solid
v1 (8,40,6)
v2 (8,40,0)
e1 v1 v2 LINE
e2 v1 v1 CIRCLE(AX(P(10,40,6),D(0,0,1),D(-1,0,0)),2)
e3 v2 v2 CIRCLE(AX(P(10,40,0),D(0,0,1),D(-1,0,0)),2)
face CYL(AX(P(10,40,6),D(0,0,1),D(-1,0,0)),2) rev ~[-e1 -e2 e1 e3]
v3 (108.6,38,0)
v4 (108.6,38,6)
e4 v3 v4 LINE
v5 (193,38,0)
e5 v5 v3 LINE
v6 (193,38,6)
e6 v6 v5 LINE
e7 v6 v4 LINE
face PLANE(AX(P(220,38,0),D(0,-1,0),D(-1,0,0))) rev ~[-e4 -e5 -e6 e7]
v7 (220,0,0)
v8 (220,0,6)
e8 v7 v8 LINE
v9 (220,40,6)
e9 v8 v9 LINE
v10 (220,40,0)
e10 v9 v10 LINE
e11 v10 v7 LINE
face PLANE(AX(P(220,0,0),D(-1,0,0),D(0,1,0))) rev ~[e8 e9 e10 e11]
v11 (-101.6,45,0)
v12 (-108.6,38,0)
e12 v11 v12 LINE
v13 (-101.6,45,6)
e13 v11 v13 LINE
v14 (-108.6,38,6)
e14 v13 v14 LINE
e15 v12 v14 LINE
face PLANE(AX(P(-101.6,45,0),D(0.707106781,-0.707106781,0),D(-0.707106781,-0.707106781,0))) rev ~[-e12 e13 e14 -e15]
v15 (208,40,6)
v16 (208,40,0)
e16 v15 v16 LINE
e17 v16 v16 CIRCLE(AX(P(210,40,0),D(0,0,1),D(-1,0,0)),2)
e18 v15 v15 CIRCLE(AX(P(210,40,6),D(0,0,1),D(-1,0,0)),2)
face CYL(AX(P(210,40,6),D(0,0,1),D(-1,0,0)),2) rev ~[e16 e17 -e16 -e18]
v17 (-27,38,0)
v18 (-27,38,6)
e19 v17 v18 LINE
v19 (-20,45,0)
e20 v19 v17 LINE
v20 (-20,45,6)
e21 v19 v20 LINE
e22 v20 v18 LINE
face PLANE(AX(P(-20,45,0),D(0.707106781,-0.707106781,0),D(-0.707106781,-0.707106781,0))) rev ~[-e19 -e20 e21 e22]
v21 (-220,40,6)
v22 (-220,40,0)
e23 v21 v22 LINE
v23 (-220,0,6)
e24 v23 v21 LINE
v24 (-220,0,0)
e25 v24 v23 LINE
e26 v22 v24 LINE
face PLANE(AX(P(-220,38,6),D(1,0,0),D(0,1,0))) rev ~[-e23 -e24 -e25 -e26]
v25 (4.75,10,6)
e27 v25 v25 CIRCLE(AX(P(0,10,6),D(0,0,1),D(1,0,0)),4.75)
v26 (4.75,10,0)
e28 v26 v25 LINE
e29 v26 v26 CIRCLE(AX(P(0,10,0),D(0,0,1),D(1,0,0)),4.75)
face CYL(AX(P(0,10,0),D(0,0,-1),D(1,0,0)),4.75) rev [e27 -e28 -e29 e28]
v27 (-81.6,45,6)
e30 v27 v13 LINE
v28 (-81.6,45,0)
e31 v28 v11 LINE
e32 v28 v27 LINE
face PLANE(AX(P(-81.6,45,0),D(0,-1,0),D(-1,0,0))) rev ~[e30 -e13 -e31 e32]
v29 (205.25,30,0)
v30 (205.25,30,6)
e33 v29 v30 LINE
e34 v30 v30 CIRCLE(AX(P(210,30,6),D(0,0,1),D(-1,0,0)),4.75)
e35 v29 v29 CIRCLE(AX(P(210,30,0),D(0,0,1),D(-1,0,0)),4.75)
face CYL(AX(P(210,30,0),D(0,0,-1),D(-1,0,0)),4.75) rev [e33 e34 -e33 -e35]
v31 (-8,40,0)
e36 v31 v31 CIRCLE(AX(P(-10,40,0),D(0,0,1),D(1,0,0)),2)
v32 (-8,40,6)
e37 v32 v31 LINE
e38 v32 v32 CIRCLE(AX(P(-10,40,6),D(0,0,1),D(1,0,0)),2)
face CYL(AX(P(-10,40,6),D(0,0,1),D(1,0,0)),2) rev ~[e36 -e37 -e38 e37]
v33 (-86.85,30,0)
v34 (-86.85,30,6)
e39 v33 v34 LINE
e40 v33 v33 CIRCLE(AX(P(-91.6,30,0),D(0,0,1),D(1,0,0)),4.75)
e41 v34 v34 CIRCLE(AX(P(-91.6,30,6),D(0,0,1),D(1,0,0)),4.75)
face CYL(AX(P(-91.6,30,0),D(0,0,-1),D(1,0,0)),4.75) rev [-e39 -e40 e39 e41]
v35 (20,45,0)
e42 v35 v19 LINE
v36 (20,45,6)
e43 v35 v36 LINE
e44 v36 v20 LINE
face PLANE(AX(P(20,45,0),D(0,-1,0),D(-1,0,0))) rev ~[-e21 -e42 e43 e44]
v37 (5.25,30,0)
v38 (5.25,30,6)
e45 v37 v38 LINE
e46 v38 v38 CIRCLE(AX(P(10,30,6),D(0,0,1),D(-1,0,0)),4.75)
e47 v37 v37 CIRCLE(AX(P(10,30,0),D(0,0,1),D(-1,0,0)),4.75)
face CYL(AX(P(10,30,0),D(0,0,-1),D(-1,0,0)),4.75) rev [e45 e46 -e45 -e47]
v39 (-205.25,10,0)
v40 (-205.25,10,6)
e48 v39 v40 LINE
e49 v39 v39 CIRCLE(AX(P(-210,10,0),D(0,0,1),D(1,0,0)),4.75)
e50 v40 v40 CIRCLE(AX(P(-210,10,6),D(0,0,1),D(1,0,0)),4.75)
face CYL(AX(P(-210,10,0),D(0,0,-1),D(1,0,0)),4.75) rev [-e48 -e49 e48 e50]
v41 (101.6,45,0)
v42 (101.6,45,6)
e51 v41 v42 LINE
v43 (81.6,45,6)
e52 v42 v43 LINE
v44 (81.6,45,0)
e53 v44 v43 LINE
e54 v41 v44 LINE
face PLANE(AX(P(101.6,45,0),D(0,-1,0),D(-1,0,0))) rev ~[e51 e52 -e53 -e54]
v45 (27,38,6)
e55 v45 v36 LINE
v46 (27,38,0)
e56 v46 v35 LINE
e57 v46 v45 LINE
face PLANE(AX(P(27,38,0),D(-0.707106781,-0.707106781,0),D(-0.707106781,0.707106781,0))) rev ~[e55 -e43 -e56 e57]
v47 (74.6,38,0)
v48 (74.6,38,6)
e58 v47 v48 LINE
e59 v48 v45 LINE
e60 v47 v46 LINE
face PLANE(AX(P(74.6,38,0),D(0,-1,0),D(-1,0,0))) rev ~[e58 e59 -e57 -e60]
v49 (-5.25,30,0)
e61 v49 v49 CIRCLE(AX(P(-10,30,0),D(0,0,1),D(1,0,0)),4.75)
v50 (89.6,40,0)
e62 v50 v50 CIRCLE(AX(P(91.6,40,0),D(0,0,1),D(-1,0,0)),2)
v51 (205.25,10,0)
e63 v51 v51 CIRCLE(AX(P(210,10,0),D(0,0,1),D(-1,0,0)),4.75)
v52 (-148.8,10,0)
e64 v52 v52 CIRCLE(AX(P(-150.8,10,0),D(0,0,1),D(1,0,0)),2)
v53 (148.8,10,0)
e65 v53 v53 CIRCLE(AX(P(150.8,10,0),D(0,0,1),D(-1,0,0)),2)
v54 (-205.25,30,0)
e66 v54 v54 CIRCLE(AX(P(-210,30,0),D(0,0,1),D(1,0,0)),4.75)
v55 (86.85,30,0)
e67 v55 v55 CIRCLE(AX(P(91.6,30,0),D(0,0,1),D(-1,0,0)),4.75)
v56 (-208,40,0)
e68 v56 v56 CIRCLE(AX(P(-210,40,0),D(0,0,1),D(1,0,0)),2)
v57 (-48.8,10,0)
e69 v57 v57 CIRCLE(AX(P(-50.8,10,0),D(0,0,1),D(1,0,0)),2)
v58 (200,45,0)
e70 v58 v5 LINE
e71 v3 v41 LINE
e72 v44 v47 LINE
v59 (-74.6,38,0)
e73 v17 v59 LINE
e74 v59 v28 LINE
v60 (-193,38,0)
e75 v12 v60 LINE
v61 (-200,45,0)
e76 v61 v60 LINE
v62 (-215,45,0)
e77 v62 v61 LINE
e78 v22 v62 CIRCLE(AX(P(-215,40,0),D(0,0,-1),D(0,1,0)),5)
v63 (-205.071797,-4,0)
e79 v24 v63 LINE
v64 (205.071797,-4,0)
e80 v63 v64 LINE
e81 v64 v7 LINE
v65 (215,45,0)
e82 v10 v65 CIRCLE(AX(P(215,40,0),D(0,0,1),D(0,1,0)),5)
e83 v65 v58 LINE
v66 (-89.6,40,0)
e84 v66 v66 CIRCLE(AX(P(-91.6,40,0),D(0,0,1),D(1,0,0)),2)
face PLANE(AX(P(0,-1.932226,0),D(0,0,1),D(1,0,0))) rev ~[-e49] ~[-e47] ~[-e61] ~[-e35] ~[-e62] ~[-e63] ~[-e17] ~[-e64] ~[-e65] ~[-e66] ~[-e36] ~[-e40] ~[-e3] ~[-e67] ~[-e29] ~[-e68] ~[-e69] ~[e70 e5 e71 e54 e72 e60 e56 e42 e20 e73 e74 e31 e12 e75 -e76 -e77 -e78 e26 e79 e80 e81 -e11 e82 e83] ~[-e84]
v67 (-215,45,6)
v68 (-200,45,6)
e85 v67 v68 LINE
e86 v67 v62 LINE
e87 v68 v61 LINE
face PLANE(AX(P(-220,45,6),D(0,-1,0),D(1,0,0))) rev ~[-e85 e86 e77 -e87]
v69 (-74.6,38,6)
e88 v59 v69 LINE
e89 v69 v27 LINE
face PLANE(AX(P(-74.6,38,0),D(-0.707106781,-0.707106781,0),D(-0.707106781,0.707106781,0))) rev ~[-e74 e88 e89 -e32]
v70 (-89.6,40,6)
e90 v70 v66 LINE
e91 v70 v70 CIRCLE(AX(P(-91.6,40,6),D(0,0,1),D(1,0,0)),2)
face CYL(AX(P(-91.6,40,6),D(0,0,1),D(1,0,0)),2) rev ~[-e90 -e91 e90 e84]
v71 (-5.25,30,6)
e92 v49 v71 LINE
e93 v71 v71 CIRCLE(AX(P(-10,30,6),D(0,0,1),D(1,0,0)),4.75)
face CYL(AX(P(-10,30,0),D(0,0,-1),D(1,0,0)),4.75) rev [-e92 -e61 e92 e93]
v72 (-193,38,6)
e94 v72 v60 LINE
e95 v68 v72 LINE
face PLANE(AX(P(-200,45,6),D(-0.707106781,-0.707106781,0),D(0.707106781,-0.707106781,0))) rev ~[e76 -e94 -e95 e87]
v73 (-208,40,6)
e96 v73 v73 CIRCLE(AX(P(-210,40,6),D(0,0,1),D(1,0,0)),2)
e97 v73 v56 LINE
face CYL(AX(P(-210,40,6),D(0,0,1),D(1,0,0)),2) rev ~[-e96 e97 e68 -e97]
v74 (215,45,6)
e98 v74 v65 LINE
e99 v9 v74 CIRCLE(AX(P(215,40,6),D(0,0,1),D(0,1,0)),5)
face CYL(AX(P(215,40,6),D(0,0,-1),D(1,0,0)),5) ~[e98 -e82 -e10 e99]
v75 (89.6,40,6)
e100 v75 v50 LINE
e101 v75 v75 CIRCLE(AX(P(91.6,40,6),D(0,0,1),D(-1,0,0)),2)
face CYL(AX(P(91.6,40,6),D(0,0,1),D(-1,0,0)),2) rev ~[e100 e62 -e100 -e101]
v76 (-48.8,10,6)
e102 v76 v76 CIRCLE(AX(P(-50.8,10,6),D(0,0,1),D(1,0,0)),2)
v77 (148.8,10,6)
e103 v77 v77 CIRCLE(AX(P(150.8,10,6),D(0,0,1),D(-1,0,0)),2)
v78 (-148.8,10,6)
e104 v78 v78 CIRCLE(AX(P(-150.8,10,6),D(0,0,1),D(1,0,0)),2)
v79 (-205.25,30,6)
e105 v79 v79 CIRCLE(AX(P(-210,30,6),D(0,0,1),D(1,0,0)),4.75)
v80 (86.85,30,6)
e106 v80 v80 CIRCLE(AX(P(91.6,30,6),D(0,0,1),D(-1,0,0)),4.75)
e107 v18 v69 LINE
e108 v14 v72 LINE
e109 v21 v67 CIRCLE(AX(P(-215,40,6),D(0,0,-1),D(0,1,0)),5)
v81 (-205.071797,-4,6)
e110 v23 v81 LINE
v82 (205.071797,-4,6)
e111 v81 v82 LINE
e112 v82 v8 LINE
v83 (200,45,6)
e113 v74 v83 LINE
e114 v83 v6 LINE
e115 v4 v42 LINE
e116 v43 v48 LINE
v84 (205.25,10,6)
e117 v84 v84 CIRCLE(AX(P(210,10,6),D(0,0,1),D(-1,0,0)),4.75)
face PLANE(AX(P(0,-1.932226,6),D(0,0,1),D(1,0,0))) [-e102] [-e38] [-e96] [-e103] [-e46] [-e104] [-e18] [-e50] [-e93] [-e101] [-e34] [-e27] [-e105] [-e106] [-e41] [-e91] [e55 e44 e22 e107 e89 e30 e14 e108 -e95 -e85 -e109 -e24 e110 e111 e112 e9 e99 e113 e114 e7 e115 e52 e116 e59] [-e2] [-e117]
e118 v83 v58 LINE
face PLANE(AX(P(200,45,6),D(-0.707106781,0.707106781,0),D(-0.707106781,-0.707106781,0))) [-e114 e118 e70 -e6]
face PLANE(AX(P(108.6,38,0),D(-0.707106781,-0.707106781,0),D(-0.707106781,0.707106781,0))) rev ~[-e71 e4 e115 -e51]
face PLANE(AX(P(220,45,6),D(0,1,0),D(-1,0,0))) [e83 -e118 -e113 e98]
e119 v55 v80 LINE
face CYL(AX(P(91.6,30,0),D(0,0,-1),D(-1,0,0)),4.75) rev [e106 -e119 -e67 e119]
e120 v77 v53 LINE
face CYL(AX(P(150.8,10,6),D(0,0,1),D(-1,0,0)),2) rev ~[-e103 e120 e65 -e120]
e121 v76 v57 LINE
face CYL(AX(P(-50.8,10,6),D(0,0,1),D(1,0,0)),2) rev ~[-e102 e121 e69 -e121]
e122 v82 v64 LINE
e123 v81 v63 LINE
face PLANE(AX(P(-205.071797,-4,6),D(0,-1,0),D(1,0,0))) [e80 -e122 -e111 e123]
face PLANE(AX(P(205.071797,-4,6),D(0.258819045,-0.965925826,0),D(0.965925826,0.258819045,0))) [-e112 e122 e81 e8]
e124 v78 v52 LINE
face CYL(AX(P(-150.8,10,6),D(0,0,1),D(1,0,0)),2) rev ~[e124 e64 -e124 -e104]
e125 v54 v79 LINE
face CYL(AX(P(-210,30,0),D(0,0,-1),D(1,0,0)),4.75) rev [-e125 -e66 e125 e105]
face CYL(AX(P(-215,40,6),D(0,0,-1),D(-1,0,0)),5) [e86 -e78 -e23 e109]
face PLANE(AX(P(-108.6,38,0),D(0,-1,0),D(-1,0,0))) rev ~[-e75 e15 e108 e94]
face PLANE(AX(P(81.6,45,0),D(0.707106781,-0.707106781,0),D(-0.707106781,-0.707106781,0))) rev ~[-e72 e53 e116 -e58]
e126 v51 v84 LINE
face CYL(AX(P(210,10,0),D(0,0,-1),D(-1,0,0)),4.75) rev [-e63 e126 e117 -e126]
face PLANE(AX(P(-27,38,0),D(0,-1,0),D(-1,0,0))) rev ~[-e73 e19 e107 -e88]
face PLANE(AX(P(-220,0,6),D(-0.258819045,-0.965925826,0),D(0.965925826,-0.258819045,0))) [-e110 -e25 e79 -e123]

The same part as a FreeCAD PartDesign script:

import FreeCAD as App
import Part
import Sketcher

V = App.Vector
Q = App.Units.Quantity


def edges_at(feature, points):
    """Names of the edges that pass closest to the given points."""
    edges = feature.Shape.Edges
    near = lambda p: min(range(len(edges)), key=lambda i: edges[i].distToShape(Part.Vertex(*p))[0])
    return sorted({f"Edge{near(p) + 1}" for p in points})


def add_polygon(sketch, points):
    """Adds a closed chain of lines whose ends are joined by coincident constraints."""
    first, n = sketch.GeometryCount, len(points)
    for a, b in zip(points, points[1:] + points[:1]):
        sketch.addGeometry(Part.LineSegment(App.Vector(*a, 0), App.Vector(*b, 0)), False)
    for i in range(n):
        sketch.addConstraint(Sketcher.Constraint("Coincident", first + i, 2, first + (i + 1) % n, 1))

doc = App.newDocument("Part")
params = doc.addObject("Spreadsheet::Sheet", "Params")
for row, (alias, value) in enumerate([
    ("sketch1_diameter", "9.5 mm"),
    ("sketch1_width", "440 mm"),
    ("sketch1_width2", "20 mm"),
    ("sketch1_width3", "40 mm"),
    ("sketch1_height", "38 mm"),
    ("pad1_length", "6 mm"),
    ("sketch2_width", "27 mm"),
    ("sketch2_width2", "20 mm"),
    ("pad2_length", "6 mm"),
    ("sketch3_diameter", "4 mm"),
    ("sketch4_width", "440 mm"),
    ("pad3_length", "6 mm"),
    ("fillet_radius", "5 mm"),
], start=1):
    params.set(f"A{row}", alias)
    params.set(f"B{row}", "=" + value)
    params.setAlias(f"B{row}", alias)

body = doc.addObject("PartDesign::Body", "Body")

# Sketch on XY plane
sketch1 = doc.addObject("Sketcher::SketchObject", "Sketch")
body.addObject(sketch1)
sketch1.AttachmentSupport = (doc.XY_Plane, [""])
sketch1.MapMode = "FlatFace"
add_polygon(sketch1, [(-220, 0), (220, 0), (220, 38), (108.6, 38), (101.6, 45), (81.6, 45), (74.6, 38), (27, 38), (20, 45), (-20, 45), (-27, 38), (-74.6, 38), (-81.6, 45), (-101.6, 45), (-108.6, 38), (-220, 38)])  # lines 0-15
sketch1.addGeometry(Part.Circle(V(-210, 10, 0), V(0, 0, 1), 4.8), False)  # 16
sketch1.addGeometry(Part.Circle(V(0, 10, 0), V(0, 0, 1), 4.8), False)  # 17
sketch1.addGeometry(Part.Circle(V(210, 10, 0), V(0, 0, 1), 4.8), False)  # 18
sketch1.addGeometry(Part.Circle(V(-210, 30, 0), V(0, 0, 1), 4.8), False)  # 19
sketch1.addGeometry(Part.Circle(V(-91.6, 30, 0), V(0, 0, 1), 4.8), False)  # 20
sketch1.addGeometry(Part.Circle(V(-10, 30, 0), V(0, 0, 1), 4.8), False)  # 21
sketch1.addGeometry(Part.Circle(V(10, 30, 0), V(0, 0, 1), 4.8), False)  # 22
sketch1.addGeometry(Part.Circle(V(91.6, 30, 0), V(0, 0, 1), 4.8), False)  # 23
sketch1.addGeometry(Part.Circle(V(210, 30, 0), V(0, 0, 1), 4.8), False)  # 24
sketch1.addConstraint(Sketcher.Constraint("Horizontal", 0))
sketch1.addConstraint(Sketcher.Constraint("Vertical", 1))
sketch1.addConstraint(Sketcher.Constraint("Horizontal", 2))
sketch1.addConstraint(Sketcher.Constraint("Horizontal", 4))
sketch1.addConstraint(Sketcher.Constraint("Horizontal", 6))
sketch1.addConstraint(Sketcher.Constraint("Horizontal", 8))
sketch1.addConstraint(Sketcher.Constraint("Horizontal", 10))
sketch1.addConstraint(Sketcher.Constraint("Horizontal", 12))
sketch1.addConstraint(Sketcher.Constraint("Horizontal", 14))
sketch1.addConstraint(Sketcher.Constraint("Vertical", 15))
sketch1.addConstraint(Sketcher.Constraint("Equal", 16, 17))
sketch1.addConstraint(Sketcher.Constraint("Equal", 17, 18))
sketch1.addConstraint(Sketcher.Constraint("Equal", 18, 19))
sketch1.addConstraint(Sketcher.Constraint("Equal", 19, 20))
sketch1.addConstraint(Sketcher.Constraint("Equal", 20, 21))
sketch1.addConstraint(Sketcher.Constraint("Equal", 21, 22))
sketch1.addConstraint(Sketcher.Constraint("Equal", 22, 23))
sketch1.addConstraint(Sketcher.Constraint("Equal", 23, 24))
sketch1.addConstraint(Sketcher.Constraint("Symmetric", 0, 2, 15, 2, -1, 1))
sketch1.addConstraint(Sketcher.Constraint("Symmetric", 16, 3, 18, 3, -2))
sketch1.addConstraint(Sketcher.Constraint("Symmetric", 21, 3, 22, 3, -2))
sketch1.addConstraint(Sketcher.Constraint("Symmetric", 20, 3, 23, 3, -2))
sketch1.addConstraint(Sketcher.Constraint("Symmetric", 19, 3, 24, 3, -2))
sketch1.addConstraint(Sketcher.Constraint("Symmetric", 6, 2, 9, 2, -2))
sketch1.addConstraint(Sketcher.Constraint("Symmetric", 4, 2, 11, 2, -2))
sketch1.addConstraint(Sketcher.Constraint("Symmetric", 2, 2, 13, 2, -2))
sketch1.addConstraint(Sketcher.Constraint("PointOnObject", 17, 3, -2))
sketch1.addConstraint(Sketcher.Constraint("Perpendicular", 3, 5))
sketch1.addConstraint(Sketcher.Constraint("Perpendicular", 5, 7))
sketch1.addConstraint(Sketcher.Constraint("Perpendicular", 7, 9))
sketch1.addConstraint(Sketcher.Constraint("Perpendicular", 9, 11))
sketch1.addConstraint(Sketcher.Constraint("Perpendicular", 11, 13))
sketch1.addConstraint(Sketcher.Constraint("Horizontal", 16, 3, 17, 3))
sketch1.addConstraint(Sketcher.Constraint("Horizontal", 19, 3, 20, 3))
sketch1.addConstraint(Sketcher.Constraint("Horizontal", 20, 3, 21, 3))
sketch1.addConstraint(Sketcher.Constraint("Horizontal", 2, 2, 5, 2))
sketch1.addConstraint(Sketcher.Constraint("Horizontal", 4, 2, 7, 2))
sketch1.addConstraint(Sketcher.Constraint("Vertical", 16, 3, 19, 3))
sketch1.addConstraint(Sketcher.Constraint("Equal", 6, 10))
sketch1.addConstraint(Sketcher.Constraint("Diameter", 16, Q("9.5 mm")))
sketch1.addConstraint(Sketcher.Constraint("DistanceX", 0, 1, 0, 2, Q("440 mm")))
sketch1.addConstraint(Sketcher.Constraint("DistanceX", 4, 2, 4, 1, Q("20 mm")))
sketch1.addConstraint(Sketcher.Constraint("DistanceX", 8, 2, 8, 1, Q("40 mm")))
sketch1.addConstraint(Sketcher.Constraint("DistanceY", 1, 1, 1, 2, Q("38 mm")))
sketch1.addConstraint(Sketcher.Constraint("DistanceX", 2, 2, 2, 1, Q("111.4 mm")))
sketch1.addConstraint(Sketcher.Constraint("DistanceX", 6, 2, 6, 1, Q("47.6 mm")))
sketch1.addConstraint(Sketcher.Constraint("DistanceX", 16, 3, -1, 1, Q("210 mm")))
sketch1.addConstraint(Sketcher.Constraint("DistanceY", -1, 1, 16, 3, Q("10 mm")))
sketch1.addConstraint(Sketcher.Constraint("DistanceY", -1, 1, 19, 3, Q("30 mm")))
sketch1.addConstraint(Sketcher.Constraint("DistanceX", 21, 3, -1, 1, Q("10 mm")))
sketch1.addConstraint(Sketcher.Constraint("DistanceX", 23, 3, 2, 2, Q("17 mm")))
sketch1.setExpression("Constraints[55]", "Params.sketch1_diameter")
sketch1.setExpression("Constraints[56]", "Params.sketch1_width")
sketch1.setExpression("Constraints[57]", "Params.sketch1_width2")
sketch1.setExpression("Constraints[58]", "Params.sketch1_width3")
sketch1.setExpression("Constraints[59]", "Params.sketch1_height")
pad1 = doc.addObject("PartDesign::Pad", "Pad")
body.addObject(pad1)
pad1.Profile = sketch1
pad1.setExpression("Length", "Params.pad1_length")

# Sketch on XY plane
sketch2 = doc.addObject("Sketcher::SketchObject", "Sketch001")
body.addObject(sketch2)
sketch2.AttachmentSupport = (doc.XY_Plane, [""])
sketch2.MapMode = "FlatFace"
sketch2.AttachmentOffset = App.Placement(V(0, 0, 6), App.Rotation())
add_polygon(sketch2, [(-220, 45), (-220, 38), (-193, 38), (-200, 45)])  # lines 0-3
add_polygon(sketch2, [(200, 45), (193, 38), (220, 38), (220, 45)])  # lines 4-7
sketch2.addConstraint(Sketcher.Constraint("Vertical", 0))
sketch2.addConstraint(Sketcher.Constraint("Horizontal", 1))
sketch2.addConstraint(Sketcher.Constraint("Horizontal", 3))
sketch2.addConstraint(Sketcher.Constraint("Horizontal", 5))
sketch2.addConstraint(Sketcher.Constraint("Vertical", 6))
sketch2.addConstraint(Sketcher.Constraint("Horizontal", 7))
sketch2.addConstraint(Sketcher.Constraint("Symmetric", 1, 2, 4, 2, -2))
sketch2.addConstraint(Sketcher.Constraint("Symmetric", 3, 2, 6, 2, -2))
sketch2.addConstraint(Sketcher.Constraint("Perpendicular", 2, 4))
sketch2.addConstraint(Sketcher.Constraint("Equal", 3, 7))
sketch2.addConstraint(Sketcher.Constraint("DistanceX", 1, 1, 1, 2, Q("27 mm")))
sketch2.addConstraint(Sketcher.Constraint("DistanceX", 3, 2, 3, 1, Q("20 mm")))
sketch2.addConstraint(Sketcher.Constraint("DistanceX", 0, 2, -1, 1, Q("220 mm")))
sketch2.addConstraint(Sketcher.Constraint("DistanceY", -1, 1, 0, 2, Q("38 mm")))
sketch2.setExpression("Constraints[18]", "Params.sketch2_width")
sketch2.setExpression("Constraints[19]", "Params.sketch2_width2")
pad2 = doc.addObject("PartDesign::Pad", "Pad001")
body.addObject(pad2)
pad2.Profile = sketch2
pad2.setExpression("Length", "Params.pad2_length")
pad2.Reversed = True

# Sketch on XY plane
sketch3 = doc.addObject("Sketcher::SketchObject", "Sketch002")
body.addObject(sketch3)
sketch3.AttachmentSupport = (doc.XY_Plane, [""])
sketch3.MapMode = "FlatFace"
sketch3.AttachmentOffset = App.Placement(V(0, 0, 6), App.Rotation())
sketch3.addGeometry(Part.Circle(V(-91.6, 40, 0), V(0, 0, 1), 2), False)
sketch3.addGeometry(Part.Circle(V(-210, 40, 0), V(0, 0, 1), 2), False)
sketch3.addGeometry(Part.Circle(V(-10, 40, 0), V(0, 0, 1), 2), False)
sketch3.addGeometry(Part.Circle(V(10, 40, 0), V(0, 0, 1), 2), False)
sketch3.addGeometry(Part.Circle(V(91.6, 40, 0), V(0, 0, 1), 2), False)
sketch3.addGeometry(Part.Circle(V(210, 40, 0), V(0, 0, 1), 2), False)
sketch3.addGeometry(Part.Circle(V(-150.8, 10, 0), V(0, 0, 1), 2), False)
sketch3.addGeometry(Part.Circle(V(-50.8, 10, 0), V(0, 0, 1), 2), False)
sketch3.addGeometry(Part.Circle(V(150.8, 10, 0), V(0, 0, 1), 2), False)
sketch3.addConstraint(Sketcher.Constraint("Equal", 0, 1))
sketch3.addConstraint(Sketcher.Constraint("Equal", 1, 2))
sketch3.addConstraint(Sketcher.Constraint("Equal", 2, 3))
sketch3.addConstraint(Sketcher.Constraint("Equal", 3, 4))
sketch3.addConstraint(Sketcher.Constraint("Equal", 4, 5))
sketch3.addConstraint(Sketcher.Constraint("Equal", 5, 6))
sketch3.addConstraint(Sketcher.Constraint("Equal", 6, 7))
sketch3.addConstraint(Sketcher.Constraint("Equal", 7, 8))
sketch3.addConstraint(Sketcher.Constraint("Symmetric", 2, 3, 3, 3, -2))
sketch3.addConstraint(Sketcher.Constraint("Symmetric", 0, 3, 4, 3, -2))
sketch3.addConstraint(Sketcher.Constraint("Symmetric", 1, 3, 5, 3, -2))
sketch3.addConstraint(Sketcher.Constraint("Symmetric", 6, 3, 8, 3, -2))
sketch3.addConstraint(Sketcher.Constraint("Horizontal", 0, 3, 1, 3))
sketch3.addConstraint(Sketcher.Constraint("Horizontal", 1, 3, 2, 3))
sketch3.addConstraint(Sketcher.Constraint("Horizontal", 6, 3, 7, 3))
sketch3.addConstraint(Sketcher.Constraint("Diameter", 0, Q("4 mm")))
sketch3.addConstraint(Sketcher.Constraint("DistanceY", -1, 1, 0, 3, Q("40 mm")))
sketch3.addConstraint(Sketcher.Constraint("DistanceX", 1, 3, -1, 1, Q("210 mm")))
sketch3.addConstraint(Sketcher.Constraint("DistanceX", 2, 3, -1, 1, Q("10 mm")))
sketch3.addConstraint(Sketcher.Constraint("DistanceY", -1, 1, 6, 3, Q("10 mm")))
sketch3.addConstraint(Sketcher.Constraint("DistanceX", 6, 3, 7, 3, Q("100 mm")))
sketch3.addConstraint(Sketcher.Constraint("DistanceX", 0, 3, -1, 1, Q("91.6 mm")))
sketch3.addConstraint(Sketcher.Constraint("DistanceX", 6, 3, -1, 1, Q("150.8 mm")))
sketch3.setExpression("Constraints[15]", "Params.sketch3_diameter")
pocket1 = doc.addObject("PartDesign::Pocket", "Pocket")
body.addObject(pocket1)
pocket1.Profile = sketch3
pocket1.Type = "ThroughAll"

# Sketch on XY plane
sketch4 = doc.addObject("Sketcher::SketchObject", "Sketch003")
body.addObject(sketch4)
sketch4.AttachmentSupport = (doc.XY_Plane, [""])
sketch4.MapMode = "FlatFace"
sketch4.AttachmentOffset = App.Placement(V(0, 0, 6), App.Rotation())
add_polygon(sketch4, [(220, 0), (-220, 0), (-205, -4), (205, -4)])  # lines 0-3
sketch4.addConstraint(Sketcher.Constraint("Horizontal", 0))
sketch4.addConstraint(Sketcher.Constraint("Horizontal", 2))
sketch4.addConstraint(Sketcher.Constraint("Symmetric", 0, 2, 3, 2, -1, 1))
sketch4.addConstraint(Sketcher.Constraint("Equal", 1, 3))
sketch4.addConstraint(Sketcher.Constraint("DistanceX", 0, 2, 0, 1, Q("440 mm")))
sketch4.addConstraint(Sketcher.Constraint("Angle", 1, Q("-15 deg")))
sketch4.addConstraint(Sketcher.Constraint("DistanceY", 1, 2, -1, 1, Q("4 mm")))
sketch4.setExpression("Constraints[8]", "Params.sketch4_width")
pad3 = doc.addObject("PartDesign::Pad", "Pad002")
body.addObject(pad3)
pad3.Profile = sketch4
pad3.setExpression("Length", "Params.pad3_length")
pad3.Reversed = True
doc.recompute()

fillet = doc.addObject("PartDesign::Fillet", "Fillet")
body.addObject(fillet)
fillet.Base = (pad3, edges_at(pad3, [(-220, 45, 3), (220, 45, 3)]))
fillet.setExpression("Radius", "Params.fillet_radius")

doc.recompute()
